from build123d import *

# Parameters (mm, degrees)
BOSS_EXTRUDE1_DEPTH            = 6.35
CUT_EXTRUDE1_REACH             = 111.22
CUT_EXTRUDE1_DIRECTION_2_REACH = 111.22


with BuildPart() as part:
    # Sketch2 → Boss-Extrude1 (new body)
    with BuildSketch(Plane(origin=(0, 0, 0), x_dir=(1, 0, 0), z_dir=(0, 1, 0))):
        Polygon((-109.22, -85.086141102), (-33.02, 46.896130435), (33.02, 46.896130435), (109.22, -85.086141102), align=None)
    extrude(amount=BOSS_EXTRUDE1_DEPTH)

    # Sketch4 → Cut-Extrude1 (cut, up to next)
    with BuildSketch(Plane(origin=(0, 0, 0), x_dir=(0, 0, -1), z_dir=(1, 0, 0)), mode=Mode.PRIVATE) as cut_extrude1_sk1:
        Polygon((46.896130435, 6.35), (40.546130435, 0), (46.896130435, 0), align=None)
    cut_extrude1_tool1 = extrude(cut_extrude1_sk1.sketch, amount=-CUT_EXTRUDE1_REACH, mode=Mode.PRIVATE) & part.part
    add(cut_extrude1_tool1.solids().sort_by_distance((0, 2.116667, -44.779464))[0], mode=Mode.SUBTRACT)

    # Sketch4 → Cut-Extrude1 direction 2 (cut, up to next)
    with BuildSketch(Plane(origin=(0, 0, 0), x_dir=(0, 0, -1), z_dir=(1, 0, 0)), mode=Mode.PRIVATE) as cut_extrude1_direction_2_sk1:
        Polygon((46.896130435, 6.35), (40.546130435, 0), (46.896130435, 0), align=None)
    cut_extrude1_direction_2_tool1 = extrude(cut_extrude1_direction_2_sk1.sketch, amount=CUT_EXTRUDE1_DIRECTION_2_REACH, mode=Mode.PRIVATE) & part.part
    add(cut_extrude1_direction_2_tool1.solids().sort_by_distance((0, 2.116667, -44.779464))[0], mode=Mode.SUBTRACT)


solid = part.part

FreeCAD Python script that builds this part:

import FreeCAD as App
import Part
import Sketcher

V = App.Vector
Q = App.Units.Quantity

doc = App.newDocument("Part")
body = doc.addObject("PartDesign::Body", "Body")

sketch1 = body.newObject("Sketcher::SketchObject", "Sketch")
sketch1.AttachmentSupport = (doc.getObject("XZ_Plane"), [""])
sketch1.MapMode = "FlatFace"
sketch1.addGeometry([
    Part.LineSegment(V(-33, -47, 0), V(-109, 85, 0)),
    Part.LineSegment(V(-109, 85, 0), V(109, 85, 0)),
    Part.LineSegment(V(109, 85, 0), V(33, -47, 0)),
    Part.LineSegment(V(33, -47, 0), V(-33, -47, 0)),
], False)
sketch1.addConstraint([
    Sketcher.Constraint("Coincident", 0, 2, 1, 1),
    Sketcher.Constraint("Coincident", 1, 2, 2, 1),
    Sketcher.Constraint("Coincident", 2, 2, 3, 1),
    Sketcher.Constraint("Coincident", 3, 2, 0, 1),
    Sketcher.Constraint("Horizontal", 1),
    Sketcher.Constraint("Horizontal", 3),
    Sketcher.Constraint("Equal", 0, 2),
    Sketcher.Constraint("Distance", 0, Q("6 in")),
    Sketcher.Constraint("DistanceX", 1, 1, 1, 2, Q("8.6 in")),
    Sketcher.Constraint("DistanceX", 3, 2, 3, 1, Q("2.6 in")),
    Sketcher.Constraint("DistanceX", 0, 2, -1, 1, Q("4.3 in")),
    Sketcher.Constraint("DistanceY", -1, 1, 0, 2, Q("85.086141 mm")),
])
pad1 = body.newObject("PartDesign::Pad", "Pad")
pad1.Profile = sketch1
pad1.Length = Q("0.25 in")
pad1.Reversed = True

sketch2 = body.newObject("Sketcher::SketchObject", "Sketch001")
sketch2.AttachmentSupport = (doc.getObject("YZ_Plane"), [""])
sketch2.MapMode = "FlatFace"
sketch2.addGeometry([
    Part.LineSegment(V(6, -47, 0), V(0, -41, 0)),
    Part.LineSegment(V(0, -41, 0), V(0, -47, 0)),
    Part.LineSegment(V(0, -47, 0), V(6, -47, 0)),
], False)
sketch2.addConstraint([
    Sketcher.Constraint("Coincident", 0, 2, 1, 1),
    Sketcher.Constraint("Coincident", 1, 2, 2, 1),
    Sketcher.Constraint("Coincident", 2, 2, 0, 1),
    Sketcher.Constraint("Vertical", 1),
    Sketcher.Constraint("Horizontal", 2),
    Sketcher.Constraint("PointOnObject", 0, 2, -2),
    Sketcher.Constraint("Equal", 2, 1),
    Sketcher.Constraint("DistanceX", 2, 1, 2, 2, Q("0.25 in")),
    Sketcher.Constraint("DistanceY", 0, 2, -1, 1, Q("40.54613 mm")),
])
pocket1 = body.newObject("PartDesign::Pocket", "Pocket")
pocket1.Profile = sketch2
pocket1.Type = "UpToFirst"

sketch3 = body.newObject("Sketcher::SketchObject", "Sketch002")
sketch3.AttachmentSupport = (doc.getObject("YZ_Plane"), [""])
sketch3.MapMode = "FlatFace"
sketch3.addGeometry([
    Part.LineSegment(V(6, -47, 0), V(0, -41, 0)),
    Part.LineSegment(V(0, -41, 0), V(0, -47, 0)),
    Part.LineSegment(V(0, -47, 0), V(6, -47, 0)),
], False)
sketch3.addConstraint([
    Sketcher.Constraint("Coincident", 0, 2, 1, 1),
    Sketcher.Constraint("Coincident", 1, 2, 2, 1),
    Sketcher.Constraint("Coincident", 2, 2, 0, 1),
    Sketcher.Constraint("Vertical", 1),
    Sketcher.Constraint("Horizontal", 2),
    Sketcher.Constraint("PointOnObject", 0, 2, -2),
    Sketcher.Constraint("Equal", 2, 1),
    Sketcher.Constraint("DistanceX", 2, 1, 2, 2, Q("0.25 in")),
    Sketcher.Constraint("DistanceY", 0, 2, -1, 1, Q("40.54613 mm")),
])
pocket2 = body.newObject("PartDesign::Pocket", "Pocket001")
pocket2.Profile = sketch3
pocket2.Type = "UpToFirst"
pocket2.Reversed = True

doc.recompute()
